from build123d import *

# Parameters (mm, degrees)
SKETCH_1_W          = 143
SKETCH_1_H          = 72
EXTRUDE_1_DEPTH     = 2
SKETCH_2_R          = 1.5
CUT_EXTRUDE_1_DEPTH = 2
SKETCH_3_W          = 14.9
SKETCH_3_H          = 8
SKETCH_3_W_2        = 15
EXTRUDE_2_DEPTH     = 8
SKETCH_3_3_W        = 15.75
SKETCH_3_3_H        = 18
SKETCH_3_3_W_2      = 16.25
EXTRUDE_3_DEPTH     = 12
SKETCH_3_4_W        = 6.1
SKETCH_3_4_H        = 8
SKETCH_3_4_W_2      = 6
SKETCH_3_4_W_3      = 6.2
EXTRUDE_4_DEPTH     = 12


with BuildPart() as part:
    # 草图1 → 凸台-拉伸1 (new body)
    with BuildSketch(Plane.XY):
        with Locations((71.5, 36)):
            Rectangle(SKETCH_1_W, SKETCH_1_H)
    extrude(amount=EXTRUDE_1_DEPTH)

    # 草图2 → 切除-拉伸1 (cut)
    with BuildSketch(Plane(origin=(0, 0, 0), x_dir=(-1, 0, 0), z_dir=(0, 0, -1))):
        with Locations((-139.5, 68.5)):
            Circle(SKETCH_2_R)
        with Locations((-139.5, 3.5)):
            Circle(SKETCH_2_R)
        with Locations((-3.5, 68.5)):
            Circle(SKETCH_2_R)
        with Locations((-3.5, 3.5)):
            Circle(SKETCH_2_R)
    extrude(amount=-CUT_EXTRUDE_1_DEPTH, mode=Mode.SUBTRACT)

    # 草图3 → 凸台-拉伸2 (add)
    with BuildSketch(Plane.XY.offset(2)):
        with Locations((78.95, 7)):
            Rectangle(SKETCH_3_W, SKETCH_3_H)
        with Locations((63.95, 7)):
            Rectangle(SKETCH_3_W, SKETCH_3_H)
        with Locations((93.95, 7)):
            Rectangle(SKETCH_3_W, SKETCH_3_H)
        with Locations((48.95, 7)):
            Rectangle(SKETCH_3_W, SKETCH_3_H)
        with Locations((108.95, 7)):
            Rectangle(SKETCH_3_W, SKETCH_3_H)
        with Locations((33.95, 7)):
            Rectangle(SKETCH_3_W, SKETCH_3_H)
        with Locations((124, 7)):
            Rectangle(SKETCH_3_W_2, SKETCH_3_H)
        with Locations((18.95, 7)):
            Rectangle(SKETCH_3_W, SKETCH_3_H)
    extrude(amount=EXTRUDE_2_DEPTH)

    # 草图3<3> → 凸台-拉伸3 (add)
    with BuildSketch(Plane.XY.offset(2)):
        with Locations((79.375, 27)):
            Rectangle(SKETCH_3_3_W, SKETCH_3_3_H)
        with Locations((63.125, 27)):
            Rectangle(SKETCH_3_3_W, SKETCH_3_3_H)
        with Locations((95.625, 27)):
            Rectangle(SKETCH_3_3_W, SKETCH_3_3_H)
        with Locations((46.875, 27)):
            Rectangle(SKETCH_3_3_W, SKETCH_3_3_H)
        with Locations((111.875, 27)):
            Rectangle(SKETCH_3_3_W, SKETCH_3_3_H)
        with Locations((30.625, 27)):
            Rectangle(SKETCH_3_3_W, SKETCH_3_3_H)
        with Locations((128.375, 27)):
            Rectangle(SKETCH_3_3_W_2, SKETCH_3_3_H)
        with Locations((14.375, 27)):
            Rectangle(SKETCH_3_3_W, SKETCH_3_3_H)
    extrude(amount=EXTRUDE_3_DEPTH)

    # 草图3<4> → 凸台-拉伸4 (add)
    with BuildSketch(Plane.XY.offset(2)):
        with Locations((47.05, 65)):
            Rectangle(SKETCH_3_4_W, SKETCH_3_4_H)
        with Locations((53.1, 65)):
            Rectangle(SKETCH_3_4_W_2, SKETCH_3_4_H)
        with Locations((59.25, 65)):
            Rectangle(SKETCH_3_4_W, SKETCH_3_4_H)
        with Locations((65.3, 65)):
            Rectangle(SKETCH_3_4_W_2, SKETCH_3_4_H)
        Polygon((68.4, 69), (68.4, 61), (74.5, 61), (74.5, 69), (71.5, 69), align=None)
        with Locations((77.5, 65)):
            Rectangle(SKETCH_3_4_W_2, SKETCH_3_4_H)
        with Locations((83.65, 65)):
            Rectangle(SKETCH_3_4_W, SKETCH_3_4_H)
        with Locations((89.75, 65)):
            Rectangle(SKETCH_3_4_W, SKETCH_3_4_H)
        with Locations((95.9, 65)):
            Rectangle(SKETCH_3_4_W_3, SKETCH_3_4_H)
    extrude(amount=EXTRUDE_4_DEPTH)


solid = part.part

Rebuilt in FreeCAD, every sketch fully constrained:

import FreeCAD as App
import Part
import Sketcher

V = App.Vector
Q = App.Units.Quantity

doc = App.newDocument("Part")
body = doc.addObject("PartDesign::Body", "Body")

# Sketch on XY plane
sketch1 = body.newObject("Sketcher::SketchObject", "Sketch")
sketch1.AttachmentSupport = (doc.getObject("XY_Plane"), [""])
sketch1.MapMode = "FlatFace"
sketch1.addGeometry([
    Part.LineSegment(V(0, 72, 0), V(0, 0, 0)),
    Part.LineSegment(V(0, 0, 0), V(143, 0, 0)),
    Part.LineSegment(V(143, 0, 0), V(143, 72, 0)),
    Part.LineSegment(V(143, 72, 0), V(0, 72, 0)),
], False)
sketch1.addConstraint([
    Sketcher.Constraint("Coincident", 0, 2, 1, 1),
    Sketcher.Constraint("Coincident", 1, 2, 2, 1),
    Sketcher.Constraint("Coincident", 2, 2, 3, 1),
    Sketcher.Constraint("Coincident", 3, 2, 0, 1),
    Sketcher.Constraint("Vertical", 0),
    Sketcher.Constraint("Horizontal", 1),
    Sketcher.Constraint("Vertical", 2),
    Sketcher.Constraint("Horizontal", 3),
    Sketcher.Constraint("Coincident", 0, 2, -1, 1),
    Sketcher.Constraint("DistanceX", 1, 1, 1, 2, Q("143 mm")),
    Sketcher.Constraint("DistanceY", 0, 2, 0, 1, Q("72 mm")),
])
pad1 = body.newObject("PartDesign::Pad", "Pad")
pad1.Profile = sketch1
pad1.Length = 2

# Sketch on XY plane
sketch2 = body.newObject("Sketcher::SketchObject", "Sketch001")
sketch2.AttachmentSupport = (doc.getObject("XY_Plane"), [""])
sketch2.MapMode = "FlatFace"
sketch2.addGeometry([
    Part.Circle(V(139.5, 68.5, 0), V(0, 0, 1), 1.5),
    Part.Circle(V(139.5, 3.5, 0), V(0, 0, 1), 1.5),
    Part.Circle(V(3.5, 68.5, 0), V(0, 0, 1), 1.5),
    Part.Circle(V(3.5, 3.5, 0), V(0, 0, 1), 1.5),
], False)
sketch2.addConstraint([
    Sketcher.Constraint("Equal", 0, 1),
    Sketcher.Constraint("Equal", 1, 2),
    Sketcher.Constraint("Equal", 2, 3),
    Sketcher.Constraint("Horizontal", 0, 3, 2, 3),
    Sketcher.Constraint("Horizontal", 1, 3, 3, 3),
    Sketcher.Constraint("Vertical", 0, 3, 1, 3),
    Sketcher.Constraint("Vertical", 2, 3, 3, 3),
    Sketcher.Constraint("Diameter", 0, Q("3 mm")),
    Sketcher.Constraint("DistanceY", 1, 3, 0, 3, Q("65 mm")),
    Sketcher.Constraint("DistanceX", 2, 3, 0, 3, Q("136 mm")),
    Sketcher.Constraint("DistanceX", -1, 1, 0, 3, Q("139.5 mm")),
    Sketcher.Constraint("DistanceY", -1, 1, 0, 3, Q("68.5 mm")),
])
pocket1 = body.newObject("PartDesign::Pocket", "Pocket")
pocket1.Profile = sketch2
pocket1.Length = 2
pocket1.Reversed = True

# Sketch on XY plane
sketch3 = body.newObject("Sketcher::SketchObject", "Sketch002")
sketch3.AttachmentSupport = (doc.getObject("XY_Plane"), [""])
sketch3.MapMode = "FlatFace"
sketch3.AttachmentOffset = App.Placement(V(0, 0, 2), App.Rotation())
sketch3.addGeometry([
    Part.LineSegment(V(72, 11, 0), V(72, 3, 0)),  # 0
    Part.LineSegment(V(72, 3, 0), V(86, 3, 0)),  # 1
    Part.LineSegment(V(86, 3, 0), V(86, 11, 0)),  # 2
    Part.LineSegment(V(86, 11, 0), V(72, 11, 0)),  # 3
    Part.LineSegment(V(56, 11, 0), V(56, 3, 0)),  # 4
    Part.LineSegment(V(56, 3, 0), V(71, 3, 0)),  # 5
    Part.LineSegment(V(71, 3, 0), V(71, 11, 0)),  # 6
    Part.LineSegment(V(71, 11, 0), V(56, 11, 0)),  # 7
    Part.LineSegment(V(86, 11, 0), V(86, 3, 0)),  # 8
    Part.LineSegment(V(86, 3, 0), V(101, 3, 0)),  # 9
    Part.LineSegment(V(101, 3, 0), V(101, 11, 0)),  # 10
    Part.LineSegment(V(101, 11, 0), V(86, 11, 0)),  # 11
    Part.LineSegment(V(42, 11, 0), V(42, 3, 0)),  # 12
    Part.LineSegment(V(42, 3, 0), V(56, 3, 0)),  # 13
    Part.LineSegment(V(56, 3, 0), V(56, 11, 0)),  # 14
    Part.LineSegment(V(56, 11, 0), V(42, 11, 0)),  # 15
    Part.LineSegment(V(102, 11, 0), V(102, 3, 0)),  # 16
    Part.LineSegment(V(102, 3, 0), V(116, 3, 0)),  # 17
    Part.LineSegment(V(116, 3, 0), V(116, 11, 0)),  # 18
    Part.LineSegment(V(116, 11, 0), V(102, 11, 0)),  # 19
    Part.LineSegment(V(26, 11, 0), V(26, 3, 0)),  # 20
    Part.LineSegment(V(26, 3, 0), V(41, 3, 0)),  # 21
    Part.LineSegment(V(41, 3, 0), V(41, 11, 0)),  # 22
    Part.LineSegment(V(41, 11, 0), V(26, 11, 0)),  # 23
    Part.LineSegment(V(116, 11, 0), V(116, 3, 0)),  # 24
    Part.LineSegment(V(116, 3, 0), V(132, 3, 0)),  # 25
    Part.LineSegment(V(132, 3, 0), V(132, 11, 0)),  # 26
    Part.LineSegment(V(132, 11, 0), V(116, 11, 0)),  # 27
    Part.LineSegment(V(12, 11, 0), V(12, 3, 0)),  # 28
    Part.LineSegment(V(12, 3, 0), V(26, 3, 0)),  # 29
    Part.LineSegment(V(26, 3, 0), V(26, 11, 0)),  # 30
    Part.LineSegment(V(26, 11, 0), V(12, 11, 0)),  # 31
], False)
sketch3.addConstraint([
    Sketcher.Constraint("Coincident", 0, 2, 1, 1),
    Sketcher.Constraint("Coincident", 1, 2, 2, 1),
    Sketcher.Constraint("Coincident", 2, 2, 3, 1),
    Sketcher.Constraint("Coincident", 3, 2, 0, 1),
    Sketcher.Constraint("Coincident", 4, 2, 5, 1),
    Sketcher.Constraint("Coincident", 5, 2, 6, 1),
    Sketcher.Constraint("Coincident", 6, 2, 7, 1),
    Sketcher.Constraint("Coincident", 7, 2, 4, 1),
    Sketcher.Constraint("Coincident", 8, 2, 9, 1),
    Sketcher.Constraint("Coincident", 9, 2, 10, 1),
    Sketcher.Constraint("Coincident", 10, 2, 11, 1),
    Sketcher.Constraint("Coincident", 11, 2, 8, 1),
    Sketcher.Constraint("Coincident", 12, 2, 13, 1),
    Sketcher.Constraint("Coincident", 13, 2, 14, 1),
    Sketcher.Constraint("Coincident", 14, 2, 15, 1),
    Sketcher.Constraint("Coincident", 15, 2, 12, 1),
    Sketcher.Constraint("Coincident", 16, 2, 17, 1),
    Sketcher.Constraint("Coincident", 17, 2, 18, 1),
    Sketcher.Constraint("Coincident", 18, 2, 19, 1),
    Sketcher.Constraint("Coincident", 19, 2, 16, 1),
    Sketcher.Constraint("Coincident", 20, 2, 21, 1),
    Sketcher.Constraint("Coincident", 21, 2, 22, 1),
    Sketcher.Constraint("Coincident", 22, 2, 23, 1),
    Sketcher.Constraint("Coincident", 23, 2, 20, 1),
    Sketcher.Constraint("Coincident", 24, 2, 25, 1),
    Sketcher.Constraint("Coincident", 25, 2, 26, 1),
    Sketcher.Constraint("Coincident", 26, 2, 27, 1),
    Sketcher.Constraint("Coincident", 27, 2, 24, 1),
    Sketcher.Constraint("Coincident", 28, 2, 29, 1),
    Sketcher.Constraint("Coincident", 29, 2, 30, 1),
    Sketcher.Constraint("Coincident", 30, 2, 31, 1),
    Sketcher.Constraint("Coincident", 31, 2, 28, 1),
    Sketcher.Constraint("Vertical", 0),
    Sketcher.Constraint("Horizontal", 1),
    Sketcher.Constraint("Vertical", 2),
    Sketcher.Constraint("Horizontal", 3),
    Sketcher.Constraint("Vertical", 4),
    Sketcher.Constraint("Horizontal", 5),
    Sketcher.Constraint("Vertical", 6),
    Sketcher.Constraint("Horizontal", 7),
    Sketcher.Constraint("Vertical", 8),
    Sketcher.Constraint("Horizontal", 9),
    Sketcher.Constraint("Vertical", 10),
    Sketcher.Constraint("Horizontal", 11),
    Sketcher.Constraint("Vertical", 12),
    Sketcher.Constraint("Horizontal", 13),
    Sketcher.Constraint("Vertical", 14),
    Sketcher.Constraint("Horizontal", 15),
    Sketcher.Constraint("Vertical", 16),
    Sketcher.Constraint("Horizontal", 17),
    Sketcher.Constraint("Vertical", 18),
    Sketcher.Constraint("Horizontal", 19),
    Sketcher.Constraint("Vertical", 20),
    Sketcher.Constraint("Horizontal", 21),
    Sketcher.Constraint("Vertical", 22),
    Sketcher.Constraint("Horizontal", 23),
    Sketcher.Constraint("Vertical", 24),
    Sketcher.Constraint("Horizontal", 25),
    Sketcher.Constraint("Vertical", 26),
    Sketcher.Constraint("Horizontal", 27),
    Sketcher.Constraint("Vertical", 28),
    Sketcher.Constraint("Horizontal", 29),
    Sketcher.Constraint("Vertical", 30),
    Sketcher.Constraint("Horizontal", 31),
    Sketcher.Constraint("Horizontal", 1, 2, 4, 2),
    Sketcher.Constraint("Horizontal", 3, 2, 6, 2),
    Sketcher.Constraint("Horizontal", 5, 2, 8, 2),
    Sketcher.Constraint("Horizontal", 7, 2, 10, 2),
    Sketcher.Constraint("Horizontal", 9, 2, 12, 2),
    Sketcher.Constraint("Horizontal", 11, 2, 14, 2),
    Sketcher.Constraint("Horizontal", 13, 2, 16, 2),
    Sketcher.Constraint("Horizontal", 15, 2, 18, 2),
    Sketcher.Constraint("Horizontal", 17, 2, 20, 2),
    Sketcher.Constraint("Horizontal", 19, 2, 22, 2),
    Sketcher.Constraint("Horizontal", 21, 2, 24, 2),
    Sketcher.Constraint("Horizontal", 23, 2, 26, 2),
    Sketcher.Constraint("Horizontal", 25, 2, 28, 2),
    Sketcher.Constraint("Horizontal", 27, 2, 30, 2),
    Sketcher.Constraint("Equal", 3, 5),
    Sketcher.Constraint("Equal", 7, 9),
    Sketcher.Constraint("Equal", 11, 13),
    Sketcher.Constraint("Equal", 15, 17),
    Sketcher.Constraint("Equal", 19, 21),
    Sketcher.Constraint("Equal", 23, 29),
    Sketcher.Constraint("DistanceX", 25, 1, 25, 2, Q("15 mm")),
    Sketcher.Constraint("DistanceY", 0, 2, 0, 1, Q("8 mm")),
    Sketcher.Constraint("DistanceX", 1, 1, 1, 2, Q("14.9 mm")),
    Sketcher.Constraint("DistanceY", -1, 1, 0, 2, Q("3 mm")),
    Sketcher.Constraint("DistanceX", 4, 2, 0, 2, Q("15 mm")),
    Sketcher.Constraint("DistanceX", 0, 2, 8, 2, Q("15 mm")),
    Sketcher.Constraint("DistanceX", 12, 2, 4, 2, Q("15 mm")),
    Sketcher.Constraint("DistanceX", 8, 2, 16, 2, Q("15 mm")),
    Sketcher.Constraint("DistanceX", 20, 2, 12, 2, Q("15 mm")),
    Sketcher.Constraint("DistanceX", 16, 2, 24, 2, Q("15 mm")),
    Sketcher.Constraint("DistanceX", 28, 2, 20, 2, Q("15 mm")),
    Sketcher.Constraint("DistanceX", -1, 1, 0, 2, Q("71.5 mm")),
])
pad2 = body.newObject("PartDesign::Pad", "Pad001")
pad2.Profile = sketch3
pad2.Length = 8

# Sketch on XY plane
sketch4 = body.newObject("Sketcher::SketchObject", "Sketch003")
sketch4.AttachmentSupport = (doc.getObject("XY_Plane"), [""])
sketch4.MapMode = "FlatFace"
sketch4.AttachmentOffset = App.Placement(V(0, 0, 2), App.Rotation())
sketch4.addGeometry([
    Part.LineSegment(V(72, 36, 0), V(72, 18, 0)),  # 0
    Part.LineSegment(V(72, 18, 0), V(87, 18, 0)),  # 1
    Part.LineSegment(V(87, 18, 0), V(87, 36, 0)),  # 2
    Part.LineSegment(V(87, 36, 0), V(72, 36, 0)),  # 3
    Part.LineSegment(V(55, 36, 0), V(55, 18, 0)),  # 4
    Part.LineSegment(V(55, 18, 0), V(71, 18, 0)),  # 5
    Part.LineSegment(V(71, 18, 0), V(71, 36, 0)),  # 6
    Part.LineSegment(V(71, 36, 0), V(55, 36, 0)),  # 7
    Part.LineSegment(V(88, 36, 0), V(88, 18, 0)),  # 8
    Part.LineSegment(V(88, 18, 0), V(104, 18, 0)),  # 9
    Part.LineSegment(V(104, 18, 0), V(104, 36, 0)),  # 10
    Part.LineSegment(V(104, 36, 0), V(88, 36, 0)),  # 11
    Part.LineSegment(V(39, 36, 0), V(39, 18, 0)),  # 12
    Part.LineSegment(V(39, 18, 0), V(55, 18, 0)),  # 13
    Part.LineSegment(V(55, 18, 0), V(55, 36, 0)),  # 14
    Part.LineSegment(V(55, 36, 0), V(39, 36, 0)),  # 15
    Part.LineSegment(V(104, 36, 0), V(104, 18, 0)),  # 16
    Part.LineSegment(V(104, 18, 0), V(120, 18, 0)),  # 17
    Part.LineSegment(V(120, 18, 0), V(120, 36, 0)),  # 18
    Part.LineSegment(V(120, 36, 0), V(104, 36, 0)),  # 19
    Part.LineSegment(V(23, 36, 0), V(23, 18, 0)),  # 20
    Part.LineSegment(V(23, 18, 0), V(38, 18, 0)),  # 21
    Part.LineSegment(V(38, 18, 0), V(38, 36, 0)),  # 22
    Part.LineSegment(V(38, 36, 0), V(23, 36, 0)),  # 23
    Part.LineSegment(V(120, 36, 0), V(120, 18, 0)),  # 24
    Part.LineSegment(V(120, 18, 0), V(136, 18, 0)),  # 25
    Part.LineSegment(V(136, 18, 0), V(136, 36, 0)),  # 26
    Part.LineSegment(V(136, 36, 0), V(120, 36, 0)),  # 27
    Part.LineSegment(V(6, 36, 0), V(6, 18, 0)),  # 28
    Part.LineSegment(V(6, 18, 0), V(22, 18, 0)),  # 29
    Part.LineSegment(V(22, 18, 0), V(22, 36, 0)),  # 30
    Part.LineSegment(V(22, 36, 0), V(6, 36, 0)),  # 31
], False)
sketch4.addConstraint([
    Sketcher.Constraint("Coincident", 0, 2, 1, 1),
    Sketcher.Constraint("Coincident", 1, 2, 2, 1),
    Sketcher.Constraint("Coincident", 2, 2, 3, 1),
    Sketcher.Constraint("Coincident", 3, 2, 0, 1),
    Sketcher.Constraint("Coincident", 4, 2, 5, 1),
    Sketcher.Constraint("Coincident", 5, 2, 6, 1),
    Sketcher.Constraint("Coincident", 6, 2, 7, 1),
    Sketcher.Constraint("Coincident", 7, 2, 4, 1),
    Sketcher.Constraint("Coincident", 8, 2, 9, 1),
    Sketcher.Constraint("Coincident", 9, 2, 10, 1),
    Sketcher.Constraint("Coincident", 10, 2, 11, 1),
    Sketcher.Constraint("Coincident", 11, 2, 8, 1),
    Sketcher.Constraint("Coincident", 12, 2, 13, 1),
    Sketcher.Constraint("Coincident", 13, 2, 14, 1),
    Sketcher.Constraint("Coincident", 14, 2, 15, 1),
    Sketcher.Constraint("Coincident", 15, 2, 12, 1),
    Sketcher.Constraint("Coincident", 16, 2, 17, 1),
    Sketcher.Constraint("Coincident", 17, 2, 18, 1),
    Sketcher.Constraint("Coincident", 18, 2, 19, 1),
    Sketcher.Constraint("Coincident", 19, 2, 16, 1),
    Sketcher.Constraint("Coincident", 20, 2, 21, 1),
    Sketcher.Constraint("Coincident", 21, 2, 22, 1),
    Sketcher.Constraint("Coincident", 22, 2, 23, 1),
    Sketcher.Constraint("Coincident", 23, 2, 20, 1),
    Sketcher.Constraint("Coincident", 24, 2, 25, 1),
    Sketcher.Constraint("Coincident", 25, 2, 26, 1),
    Sketcher.Constraint("Coincident", 26, 2, 27, 1),
    Sketcher.Constraint("Coincident", 27, 2, 24, 1),
    Sketcher.Constraint("Coincident", 28, 2, 29, 1),
    Sketcher.Constraint("Coincident", 29, 2, 30, 1),
    Sketcher.Constraint("Coincident", 30, 2, 31, 1),
    Sketcher.Constraint("Coincident", 31, 2, 28, 1),
    Sketcher.Constraint("Vertical", 0),
    Sketcher.Constraint("Horizontal", 1),
    Sketcher.Constraint("Vertical", 2),
    Sketcher.Constraint("Horizontal", 3),
    Sketcher.Constraint("Vertical", 4),
    Sketcher.Constraint("Horizontal", 5),
    Sketcher.Constraint("Vertical", 6),
    Sketcher.Constraint("Horizontal", 7),
    Sketcher.Constraint("Vertical", 8),
    Sketcher.Constraint("Horizontal", 9),
    Sketcher.Constraint("Vertical", 10),
    Sketcher.Constraint("Horizontal", 11),
    Sketcher.Constraint("Vertical", 12),
    Sketcher.Constraint("Horizontal", 13),
    Sketcher.Constraint("Vertical", 14),
    Sketcher.Constraint("Horizontal", 15),
    Sketcher.Constraint("Vertical", 16),
    Sketcher.Constraint("Horizontal", 17),
    Sketcher.Constraint("Vertical", 18),
    Sketcher.Constraint("Horizontal", 19),
    Sketcher.Constraint("Vertical", 20),
    Sketcher.Constraint("Horizontal", 21),
    Sketcher.Constraint("Vertical", 22),
    Sketcher.Constraint("Horizontal", 23),
    Sketcher.Constraint("Vertical", 24),
    Sketcher.Constraint("Horizontal", 25),
    Sketcher.Constraint("Vertical", 26),
    Sketcher.Constraint("Horizontal", 27),
    Sketcher.Constraint("Vertical", 28),
    Sketcher.Constraint("Horizontal", 29),
    Sketcher.Constraint("Vertical", 30),
    Sketcher.Constraint("Horizontal", 31),
    Sketcher.Constraint("Horizontal", 1, 2, 4, 2),
    Sketcher.Constraint("Horizontal", 3, 2, 6, 2),
    Sketcher.Constraint("Horizontal", 5, 2, 8, 2),
    Sketcher.Constraint("Horizontal", 7, 2, 10, 2),
    Sketcher.Constraint("Horizontal", 9, 2, 12, 2),
    Sketcher.Constraint("Horizontal", 11, 2, 14, 2),
    Sketcher.Constraint("Horizontal", 13, 2, 16, 2),
    Sketcher.Constraint("Horizontal", 15, 2, 18, 2),
    Sketcher.Constraint("Horizontal", 17, 2, 20, 2),
    Sketcher.Constraint("Horizontal", 19, 2, 22, 2),
    Sketcher.Constraint("Horizontal", 21, 2, 24, 2),
    Sketcher.Constraint("Horizontal", 23, 2, 26, 2),
    Sketcher.Constraint("Horizontal", 25, 2, 28, 2),
    Sketcher.Constraint("Horizontal", 27, 2, 30, 2),
    Sketcher.Constraint("Equal", 3, 5),
    Sketcher.Constraint("Equal", 7, 9),
    Sketcher.Constraint("Equal", 11, 13),
    Sketcher.Constraint("Equal", 15, 17),
    Sketcher.Constraint("Equal", 19, 21),
    Sketcher.Constraint("Equal", 23, 29),
    Sketcher.Constraint("DistanceY", 0, 2, 0, 1, Q("18 mm")),
    Sketcher.Constraint("DistanceY", -1, 1, 0, 2, Q("18 mm")),
    Sketcher.Constraint("DistanceX", -1, 1, 5, 2, Q("71 mm")),
    Sketcher.Constraint("DistanceX", -1, 1, 12, 2, Q("39 mm")),
    Sketcher.Constraint("DistanceX", -1, 1, 16, 2, Q("104 mm")),
    Sketcher.Constraint("DistanceX", 4, 2, 1, 2, Q("32 mm")),
    Sketcher.Constraint("DistanceX", 0, 2, 9, 2, Q("32 mm")),
    Sketcher.Constraint("DistanceX", 8, 2, 17, 2, Q("32 mm")),
    Sketcher.Constraint("DistanceX", 20, 2, 13, 2, Q("32 mm")),
    Sketcher.Constraint("DistanceX", 9, 2, 25, 2, Q("33 mm")),
    Sketcher.Constraint("DistanceX", 28, 2, 21, 2, Q("32 mm")),
    Sketcher.Constraint("DistanceX", 25, 1, 25, 2, Q("16.25 mm")),
])
pad3 = body.newObject("PartDesign::Pad", "Pad002")
pad3.Profile = sketch4
pad3.Length = 12

# Sketch on XY plane
sketch5 = body.newObject("Sketcher::SketchObject", "Sketch004")
sketch5.AttachmentSupport = (doc.getObject("XY_Plane"), [""])
sketch5.MapMode = "FlatFace"
sketch5.AttachmentOffset = App.Placement(V(0, 0, 2), App.Rotation())
sketch5.addGeometry([
    Part.LineSegment(V(44, 69, 0), V(44, 61, 0)),  # 0
    Part.LineSegment(V(44, 61, 0), V(56, 61, 0)),  # 1
    Part.LineSegment(V(56, 61, 0), V(56, 69, 0)),  # 2
    Part.LineSegment(V(56, 69, 0), V(44, 69, 0)),  # 3
    Part.LineSegment(V(56, 69, 0), V(56, 61, 0)),  # 4
    Part.LineSegment(V(56, 61, 0), V(68, 61, 0)),  # 5
    Part.LineSegment(V(68, 61, 0), V(68, 69, 0)),  # 6
    Part.LineSegment(V(68, 69, 0), V(56, 69, 0)),  # 7
    Part.LineSegment(V(68, 69, 0), V(68, 61, 0)),  # 8
    Part.LineSegment(V(68, 61, 0), V(80, 61, 0)),  # 9
    Part.LineSegment(V(80, 61, 0), V(80, 69, 0)),  # 10
    Part.LineSegment(V(80, 69, 0), V(68, 69, 0)),  # 11
    Part.LineSegment(V(81, 69, 0), V(81, 61, 0)),  # 12
    Part.LineSegment(V(81, 61, 0), V(99, 61, 0)),  # 13
    Part.LineSegment(V(99, 61, 0), V(99, 69, 0)),  # 14
    Part.LineSegment(V(99, 69, 0), V(81, 69, 0)),  # 15
], False)
sketch5.addConstraint([
    Sketcher.Constraint("Coincident", 0, 2, 1, 1),
    Sketcher.Constraint("Coincident", 1, 2, 2, 1),
    Sketcher.Constraint("Coincident", 2, 2, 3, 1),
    Sketcher.Constraint("Coincident", 3, 2, 0, 1),
    Sketcher.Constraint("Coincident", 4, 2, 5, 1),
    Sketcher.Constraint("Coincident", 5, 2, 6, 1),
    Sketcher.Constraint("Coincident", 6, 2, 7, 1),
    Sketcher.Constraint("Coincident", 7, 2, 4, 1),
    Sketcher.Constraint("Coincident", 8, 2, 9, 1),
    Sketcher.Constraint("Coincident", 9, 2, 10, 1),
    Sketcher.Constraint("Coincident", 10, 2, 11, 1),
    Sketcher.Constraint("Coincident", 11, 2, 8, 1),
    Sketcher.Constraint("Coincident", 12, 2, 13, 1),
    Sketcher.Constraint("Coincident", 13, 2, 14, 1),
    Sketcher.Constraint("Coincident", 14, 2, 15, 1),
    Sketcher.Constraint("Coincident", 15, 2, 12, 1),
    Sketcher.Constraint("Vertical", 0),
    Sketcher.Constraint("Horizontal", 1),
    Sketcher.Constraint("Vertical", 2),
    Sketcher.Constraint("Horizontal", 3),
    Sketcher.Constraint("Vertical", 4),
    Sketcher.Constraint("Horizontal", 5),
    Sketcher.Constraint("Vertical", 6),
    Sketcher.Constraint("Horizontal", 7),
    Sketcher.Constraint("Vertical", 8),
    Sketcher.Constraint("Horizontal", 9),
    Sketcher.Constraint("Vertical", 10),
    Sketcher.Constraint("Horizontal", 11),
    Sketcher.Constraint("Vertical", 12),
    Sketcher.Constraint("Horizontal", 13),
    Sketcher.Constraint("Vertical", 14),
    Sketcher.Constraint("Horizontal", 15),
    Sketcher.Constraint("Horizontal", 1, 2, 4, 2),
    Sketcher.Constraint("Horizontal", 3, 2, 6, 2),
    Sketcher.Constraint("Horizontal", 5, 2, 8, 2),
    Sketcher.Constraint("Horizontal", 7, 2, 10, 2),
    Sketcher.Constraint("Horizontal", 9, 2, 12, 2),
    Sketcher.Constraint("Horizontal", 11, 2, 14, 2),
    Sketcher.Constraint("Equal", 3, 5),
    Sketcher.Constraint("Equal", 7, 9),
    Sketcher.Constraint("DistanceY", 0, 2, 0, 1, Q("8 mm")),
    Sketcher.Constraint("DistanceX", 1, 1, 1, 2, Q("12.1 mm")),
    Sketcher.Constraint("DistanceX", 13, 1, 13, 2, Q("18.4 mm")),
    Sketcher.Constraint("DistanceX", -1, 1, 0, 2, Q("44 mm")),
    Sketcher.Constraint("DistanceY", -1, 1, 0, 2, Q("61 mm")),
    Sketcher.Constraint("DistanceX", -1, 1, 13, 2, Q("99 mm")),
    Sketcher.Constraint("DistanceX", -1, 1, 4, 2, Q("56.2 mm")),
    Sketcher.Constraint("DistanceX", -1, 1, 8, 2, Q("68.4 mm")),
])
pad4 = body.newObject("PartDesign::Pad", "Pad003")
pad4.Profile = sketch5
pad4.Length = 12

doc.recompute()
